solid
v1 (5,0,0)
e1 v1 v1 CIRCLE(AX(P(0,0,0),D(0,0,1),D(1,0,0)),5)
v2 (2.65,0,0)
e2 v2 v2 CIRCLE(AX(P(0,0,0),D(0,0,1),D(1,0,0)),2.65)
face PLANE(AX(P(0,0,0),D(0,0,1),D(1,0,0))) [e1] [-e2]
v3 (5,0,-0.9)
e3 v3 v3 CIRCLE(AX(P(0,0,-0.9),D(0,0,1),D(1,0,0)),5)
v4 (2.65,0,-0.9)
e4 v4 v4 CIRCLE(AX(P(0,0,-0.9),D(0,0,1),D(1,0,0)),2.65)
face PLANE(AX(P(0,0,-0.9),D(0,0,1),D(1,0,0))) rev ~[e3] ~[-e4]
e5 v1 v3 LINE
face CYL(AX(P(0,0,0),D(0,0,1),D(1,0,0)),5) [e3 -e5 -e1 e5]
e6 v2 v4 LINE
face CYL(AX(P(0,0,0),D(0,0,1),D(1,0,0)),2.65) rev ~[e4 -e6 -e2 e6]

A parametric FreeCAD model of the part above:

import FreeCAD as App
import Part
import Sketcher

V = App.Vector
Q = App.Units.Quantity

doc = App.newDocument("Part")
body = doc.addObject("PartDesign::Body", "Body")

sketch1 = body.newObject("Sketcher::SketchObject", "Sketch")
sketch1.AttachmentSupport = (doc.getObject("XY_Plane"), [""])
sketch1.MapMode = "FlatFace"
sketch1.addGeometry([
    Part.Circle(V(0, 0, 0), V(0, 0, 1), 5),
    Part.Circle(V(0, 0, 0), V(0, 0, 1), 2.6),
], False)
sketch1.addConstraint([
    Sketcher.Constraint("Coincident", 0, 3, -1, 1),
    Sketcher.Constraint("Coincident", 1, 3, -1, 1),
    Sketcher.Constraint("Diameter", 0, Q("10 mm")),
    Sketcher.Constraint("Diameter", 1, Q("5.3 mm")),
])
pad1 = body.newObject("PartDesign::Pad", "Pad")
pad1.Profile = sketch1
pad1.Length = 0.9
pad1.Reversed = True

doc.recompute()
